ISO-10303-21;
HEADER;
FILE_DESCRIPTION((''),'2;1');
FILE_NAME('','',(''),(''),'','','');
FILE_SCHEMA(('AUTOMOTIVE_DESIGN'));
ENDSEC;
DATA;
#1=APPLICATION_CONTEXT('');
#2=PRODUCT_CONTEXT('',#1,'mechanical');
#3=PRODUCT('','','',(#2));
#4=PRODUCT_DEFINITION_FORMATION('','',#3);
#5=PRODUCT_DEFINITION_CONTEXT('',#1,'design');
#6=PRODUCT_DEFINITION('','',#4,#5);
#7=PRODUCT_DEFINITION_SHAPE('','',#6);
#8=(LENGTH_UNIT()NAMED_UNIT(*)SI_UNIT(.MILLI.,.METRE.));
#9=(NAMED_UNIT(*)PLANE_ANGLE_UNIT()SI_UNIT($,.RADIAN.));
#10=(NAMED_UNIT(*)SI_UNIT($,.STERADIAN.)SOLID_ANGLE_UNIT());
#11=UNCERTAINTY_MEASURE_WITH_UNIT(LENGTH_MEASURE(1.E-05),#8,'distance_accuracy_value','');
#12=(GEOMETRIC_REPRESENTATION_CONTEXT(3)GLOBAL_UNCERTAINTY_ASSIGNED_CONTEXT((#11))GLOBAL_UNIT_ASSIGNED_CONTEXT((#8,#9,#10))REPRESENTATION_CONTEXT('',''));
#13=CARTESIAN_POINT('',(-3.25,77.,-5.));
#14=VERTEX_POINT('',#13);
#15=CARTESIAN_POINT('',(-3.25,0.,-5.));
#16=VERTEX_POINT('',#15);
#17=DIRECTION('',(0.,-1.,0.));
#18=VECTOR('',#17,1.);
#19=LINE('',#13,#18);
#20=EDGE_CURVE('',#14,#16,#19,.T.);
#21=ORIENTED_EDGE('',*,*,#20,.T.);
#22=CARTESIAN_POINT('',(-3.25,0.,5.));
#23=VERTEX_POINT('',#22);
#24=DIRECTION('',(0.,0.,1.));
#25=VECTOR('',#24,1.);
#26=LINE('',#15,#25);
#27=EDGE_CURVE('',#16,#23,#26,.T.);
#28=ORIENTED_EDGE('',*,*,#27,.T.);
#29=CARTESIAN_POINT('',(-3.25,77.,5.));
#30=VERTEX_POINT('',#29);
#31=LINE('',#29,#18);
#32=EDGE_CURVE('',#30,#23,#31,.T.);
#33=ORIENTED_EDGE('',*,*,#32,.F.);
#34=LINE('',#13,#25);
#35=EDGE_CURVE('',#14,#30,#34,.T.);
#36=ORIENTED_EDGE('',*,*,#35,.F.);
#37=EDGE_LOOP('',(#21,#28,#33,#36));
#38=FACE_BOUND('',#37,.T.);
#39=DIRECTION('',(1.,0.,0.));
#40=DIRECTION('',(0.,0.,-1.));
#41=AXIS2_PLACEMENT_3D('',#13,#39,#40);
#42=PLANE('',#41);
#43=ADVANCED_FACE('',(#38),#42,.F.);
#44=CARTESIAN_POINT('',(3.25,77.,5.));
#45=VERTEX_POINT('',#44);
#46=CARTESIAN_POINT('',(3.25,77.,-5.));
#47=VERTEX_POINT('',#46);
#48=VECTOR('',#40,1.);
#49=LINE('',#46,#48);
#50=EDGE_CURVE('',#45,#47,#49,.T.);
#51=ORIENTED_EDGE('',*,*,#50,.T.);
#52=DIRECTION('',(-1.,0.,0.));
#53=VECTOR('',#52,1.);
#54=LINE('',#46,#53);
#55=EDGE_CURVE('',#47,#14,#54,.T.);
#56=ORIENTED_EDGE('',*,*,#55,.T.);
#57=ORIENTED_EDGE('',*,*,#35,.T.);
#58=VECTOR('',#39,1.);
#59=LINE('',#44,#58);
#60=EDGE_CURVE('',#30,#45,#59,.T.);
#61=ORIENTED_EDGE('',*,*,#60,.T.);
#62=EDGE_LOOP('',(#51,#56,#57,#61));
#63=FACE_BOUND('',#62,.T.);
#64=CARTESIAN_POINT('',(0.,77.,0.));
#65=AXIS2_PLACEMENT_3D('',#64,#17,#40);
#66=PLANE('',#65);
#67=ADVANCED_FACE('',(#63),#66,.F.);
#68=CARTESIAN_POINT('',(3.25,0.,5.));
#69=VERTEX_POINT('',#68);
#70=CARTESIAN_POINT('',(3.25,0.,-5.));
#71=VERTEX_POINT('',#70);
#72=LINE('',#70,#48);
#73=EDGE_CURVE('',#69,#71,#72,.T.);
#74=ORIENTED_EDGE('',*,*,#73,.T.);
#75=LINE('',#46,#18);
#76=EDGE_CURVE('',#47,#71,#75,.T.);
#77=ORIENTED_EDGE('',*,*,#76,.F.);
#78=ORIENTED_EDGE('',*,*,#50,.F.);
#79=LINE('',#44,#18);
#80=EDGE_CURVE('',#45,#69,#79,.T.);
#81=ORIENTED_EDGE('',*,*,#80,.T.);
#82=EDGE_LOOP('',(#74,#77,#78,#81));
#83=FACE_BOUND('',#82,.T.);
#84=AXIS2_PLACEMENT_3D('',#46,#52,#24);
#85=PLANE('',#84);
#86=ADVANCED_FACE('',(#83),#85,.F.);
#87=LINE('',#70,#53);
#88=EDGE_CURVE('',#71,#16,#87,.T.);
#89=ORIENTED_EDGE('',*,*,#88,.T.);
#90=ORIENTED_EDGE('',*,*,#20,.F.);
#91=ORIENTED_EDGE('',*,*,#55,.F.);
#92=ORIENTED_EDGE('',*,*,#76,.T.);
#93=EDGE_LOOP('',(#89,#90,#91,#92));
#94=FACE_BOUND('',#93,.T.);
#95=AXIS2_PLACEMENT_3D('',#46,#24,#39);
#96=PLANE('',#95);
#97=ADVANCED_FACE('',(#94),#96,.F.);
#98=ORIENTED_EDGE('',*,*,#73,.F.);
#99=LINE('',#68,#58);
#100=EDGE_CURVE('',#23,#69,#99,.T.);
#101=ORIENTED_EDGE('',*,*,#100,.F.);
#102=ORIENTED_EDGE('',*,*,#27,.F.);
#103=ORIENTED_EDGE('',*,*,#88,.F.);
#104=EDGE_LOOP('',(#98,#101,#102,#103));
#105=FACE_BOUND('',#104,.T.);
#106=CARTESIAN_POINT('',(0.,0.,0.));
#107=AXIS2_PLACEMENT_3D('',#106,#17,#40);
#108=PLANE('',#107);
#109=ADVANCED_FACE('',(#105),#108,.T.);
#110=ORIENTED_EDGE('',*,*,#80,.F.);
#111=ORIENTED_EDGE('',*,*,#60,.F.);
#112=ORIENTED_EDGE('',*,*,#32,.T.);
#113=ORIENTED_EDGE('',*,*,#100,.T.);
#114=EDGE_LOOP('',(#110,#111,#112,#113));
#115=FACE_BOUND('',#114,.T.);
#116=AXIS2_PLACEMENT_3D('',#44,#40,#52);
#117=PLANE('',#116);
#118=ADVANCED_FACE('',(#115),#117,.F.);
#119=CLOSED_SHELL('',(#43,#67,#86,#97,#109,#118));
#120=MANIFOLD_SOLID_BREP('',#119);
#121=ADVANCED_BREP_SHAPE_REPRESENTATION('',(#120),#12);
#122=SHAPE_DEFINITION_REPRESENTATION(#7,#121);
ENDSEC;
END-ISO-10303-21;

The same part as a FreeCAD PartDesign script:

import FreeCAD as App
import Part
import Sketcher
Q = App.Units.Quantity

doc = App.newDocument("Part")
params = doc.addObject("Spreadsheet::Sheet", "Params")
for row, (alias, value) in enumerate([
    ("sketch1_height", "10 mm"),
    ("sketch1_width", "6.5 mm"),
    ("pad1_length", "77 mm"),
], start=1):
    params.set(f"A{row}", alias)
    params.set(f"B{row}", "=" + value)
    params.setAlias(f"B{row}", alias)

body = doc.addObject("PartDesign::Body", "Body")

# Sketch on XZ plane
sketch1 = body.newObject("Sketcher::SketchObject", "Sketch")
sketch1.AttachmentSupport = (doc.getObject("XZ_Plane"), [""])
sketch1.MapMode = "FlatFace"
sketch1.addGeometry(Part.LineSegment(App.Vector(-3.25, -5, 0), App.Vector(-3.25, 5, 0)), False)
sketch1.addGeometry(Part.LineSegment(App.Vector(-3.25, 5, 0), App.Vector(3.25, 5, 0)), False)
sketch1.addGeometry(Part.LineSegment(App.Vector(3.25, 5, 0), App.Vector(3.25, -5, 0)), False)
sketch1.addGeometry(Part.LineSegment(App.Vector(3.25, -5, 0), App.Vector(-3.25, -5, 0)), False)
sketch1.addConstraint(Sketcher.Constraint("Coincident", 0, 2, 1, 1))
sketch1.addConstraint(Sketcher.Constraint("Coincident", 1, 2, 2, 1))
sketch1.addConstraint(Sketcher.Constraint("Coincident", 2, 2, 3, 1))
sketch1.addConstraint(Sketcher.Constraint("Coincident", 3, 2, 0, 1))
sketch1.addConstraint(Sketcher.Constraint("Vertical", 0))
sketch1.addConstraint(Sketcher.Constraint("Horizontal", 1))
sketch1.addConstraint(Sketcher.Constraint("Vertical", 2))
sketch1.addConstraint(Sketcher.Constraint("Horizontal", 3))
sketch1.addConstraint(Sketcher.Constraint("Symmetric", 0, 2, 2, 2, -1, 1))
sketch1.addConstraint(Sketcher.Constraint("DistanceY", 0, 1, 0, 2, Q("10 mm")))
sketch1.addConstraint(Sketcher.Constraint("DistanceX", 1, 1, 1, 2, Q("6.5 mm")))
sketch1.setExpression("Constraints[9]", "Params.sketch1_height")
sketch1.setExpression("Constraints[10]", "Params.sketch1_width")
pad1 = body.newObject("PartDesign::Pad", "Pad")
pad1.Profile = sketch1
pad1.setExpression("Length", "Params.pad1_length")
pad1.Reversed = True

doc.recompute()
